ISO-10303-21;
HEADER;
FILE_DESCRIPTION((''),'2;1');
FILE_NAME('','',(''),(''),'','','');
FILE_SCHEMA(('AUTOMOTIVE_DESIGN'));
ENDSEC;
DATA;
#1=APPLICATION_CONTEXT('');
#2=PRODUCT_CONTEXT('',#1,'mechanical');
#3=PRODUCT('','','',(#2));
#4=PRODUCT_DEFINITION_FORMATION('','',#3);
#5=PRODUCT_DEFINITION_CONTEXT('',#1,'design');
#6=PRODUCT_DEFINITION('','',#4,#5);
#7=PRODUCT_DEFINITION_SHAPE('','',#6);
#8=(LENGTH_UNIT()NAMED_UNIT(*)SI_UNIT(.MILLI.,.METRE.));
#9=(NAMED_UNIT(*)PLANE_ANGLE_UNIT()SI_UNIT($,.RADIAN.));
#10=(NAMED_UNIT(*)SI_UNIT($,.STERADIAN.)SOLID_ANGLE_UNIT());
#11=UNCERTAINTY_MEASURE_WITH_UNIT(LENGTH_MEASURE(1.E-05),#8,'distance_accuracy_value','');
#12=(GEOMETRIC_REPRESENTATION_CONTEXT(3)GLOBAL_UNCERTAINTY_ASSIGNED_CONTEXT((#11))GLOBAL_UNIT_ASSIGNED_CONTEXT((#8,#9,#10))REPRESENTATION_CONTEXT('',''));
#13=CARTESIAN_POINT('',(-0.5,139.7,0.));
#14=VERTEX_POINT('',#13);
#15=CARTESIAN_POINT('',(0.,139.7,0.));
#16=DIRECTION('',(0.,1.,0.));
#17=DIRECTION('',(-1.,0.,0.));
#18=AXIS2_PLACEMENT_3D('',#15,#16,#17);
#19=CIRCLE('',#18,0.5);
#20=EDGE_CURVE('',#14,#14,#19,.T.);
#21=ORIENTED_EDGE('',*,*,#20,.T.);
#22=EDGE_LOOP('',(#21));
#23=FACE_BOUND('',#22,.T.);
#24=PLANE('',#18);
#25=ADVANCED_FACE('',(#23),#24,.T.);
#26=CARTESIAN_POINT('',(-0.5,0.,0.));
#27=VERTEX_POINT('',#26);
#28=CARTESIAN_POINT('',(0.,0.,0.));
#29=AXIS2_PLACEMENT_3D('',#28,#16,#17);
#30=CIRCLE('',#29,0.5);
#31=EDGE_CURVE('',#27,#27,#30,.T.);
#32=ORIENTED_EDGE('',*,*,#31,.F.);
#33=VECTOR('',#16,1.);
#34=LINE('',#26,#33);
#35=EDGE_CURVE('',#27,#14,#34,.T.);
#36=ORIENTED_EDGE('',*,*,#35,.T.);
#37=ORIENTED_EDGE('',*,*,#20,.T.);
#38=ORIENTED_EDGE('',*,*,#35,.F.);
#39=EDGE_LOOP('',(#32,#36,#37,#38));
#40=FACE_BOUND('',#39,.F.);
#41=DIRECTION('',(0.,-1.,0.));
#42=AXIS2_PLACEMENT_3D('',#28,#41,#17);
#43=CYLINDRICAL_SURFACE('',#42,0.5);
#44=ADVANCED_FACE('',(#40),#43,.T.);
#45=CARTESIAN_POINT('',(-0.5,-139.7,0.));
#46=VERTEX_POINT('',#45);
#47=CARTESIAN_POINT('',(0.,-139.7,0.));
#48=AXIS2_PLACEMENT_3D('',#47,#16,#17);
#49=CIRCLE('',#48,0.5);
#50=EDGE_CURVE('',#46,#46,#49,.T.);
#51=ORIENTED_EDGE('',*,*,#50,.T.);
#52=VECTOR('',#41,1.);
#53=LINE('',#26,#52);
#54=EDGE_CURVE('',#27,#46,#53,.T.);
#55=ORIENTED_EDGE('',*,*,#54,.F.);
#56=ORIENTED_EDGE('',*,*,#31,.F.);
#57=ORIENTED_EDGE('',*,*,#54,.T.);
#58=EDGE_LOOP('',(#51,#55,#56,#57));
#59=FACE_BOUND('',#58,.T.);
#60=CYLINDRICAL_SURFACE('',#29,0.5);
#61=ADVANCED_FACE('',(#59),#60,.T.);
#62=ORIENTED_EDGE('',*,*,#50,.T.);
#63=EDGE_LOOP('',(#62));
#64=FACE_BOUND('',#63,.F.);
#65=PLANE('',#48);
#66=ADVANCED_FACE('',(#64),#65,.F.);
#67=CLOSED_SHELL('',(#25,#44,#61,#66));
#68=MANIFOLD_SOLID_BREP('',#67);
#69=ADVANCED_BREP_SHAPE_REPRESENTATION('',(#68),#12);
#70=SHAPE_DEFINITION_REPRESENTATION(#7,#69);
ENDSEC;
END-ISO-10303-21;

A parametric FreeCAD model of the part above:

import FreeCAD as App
import Part
import Sketcher

doc = App.newDocument("Part")
body = doc.addObject("PartDesign::Body", "Body")

sketch1 = body.newObject("Sketcher::SketchObject", "Sketch")
sketch1.AttachmentSupport = (doc.getObject("XZ_Plane"), [""])
sketch1.MapMode = "FlatFace"
sketch1.addGeometry(Part.Circle(App.Vector(0, 0, 0), App.Vector(0, 0, 1), 0.5), False)
sketch1.addConstraint(Sketcher.Constraint("Coincident", 0, 3, -1, 1))
sketch1.addConstraint(Sketcher.Constraint("Diameter", 0, 1.0))
pad1 = body.newObject("PartDesign::Pad", "Pad")
pad1.Profile = sketch1
pad1.Length = 279.4
pad1.Midplane = True

doc.recompute()
